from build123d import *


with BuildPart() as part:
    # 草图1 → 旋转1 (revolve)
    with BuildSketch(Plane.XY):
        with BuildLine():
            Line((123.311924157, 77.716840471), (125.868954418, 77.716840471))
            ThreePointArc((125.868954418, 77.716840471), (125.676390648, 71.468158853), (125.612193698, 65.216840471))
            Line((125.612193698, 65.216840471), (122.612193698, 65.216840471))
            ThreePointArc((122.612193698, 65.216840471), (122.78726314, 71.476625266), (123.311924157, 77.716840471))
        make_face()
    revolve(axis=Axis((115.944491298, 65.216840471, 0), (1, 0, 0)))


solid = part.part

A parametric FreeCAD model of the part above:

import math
import FreeCAD as App
import Part
import Sketcher

doc = App.newDocument("Part")
body = doc.addObject("PartDesign::Body", "Body")

# Sketch on XY plane
sketch1 = body.newObject("Sketcher::SketchObject", "Sketch")
sketch1.AttachmentSupport = (doc.getObject("XY_Plane"), [""])
sketch1.MapMode = "FlatFace"
sketch1.addGeometry([
    Part.LineSegment(App.Vector(125.9, 77.7, 0), App.Vector(123.3, 77.7, 0)),
    Part.ArcOfCircle(Part.Circle(App.Vector(234.6, 65.2, 0), App.Vector(0, 0, 1), 112), math.radians(173.59), math.radians(180)),
    Part.LineSegment(App.Vector(122.6, 65.2, 0), App.Vector(125.6, 65.2, 0)),
    Part.ArcOfCircle(Part.Circle(App.Vector(430, 65.2, 0), App.Vector(0, 0, 1), 304.4), math.radians(177.65), math.radians(180)),
], False)
sketch1.addGeometry(Part.LineSegment(App.Vector(122.6, 65.2, 0), App.Vector(430, 65.2, 0)), True)  # axis
sketch1.addConstraint([
    Sketcher.Constraint("Coincident", 0, 2, 1, 1),
    Sketcher.Constraint("Coincident", 1, 2, 2, 1),
    Sketcher.Constraint("Coincident", 2, 2, 3, 2),
    Sketcher.Constraint("Coincident", 3, 1, 0, 1),
    Sketcher.Constraint("Horizontal", 0),
    Sketcher.Constraint("Horizontal", 2),
    Sketcher.Constraint("Horizontal", 4),
    Sketcher.Constraint("Coincident", 4, 1, 1, 2),
    Sketcher.Constraint("Coincident", 4, 2, 3, 3),
    Sketcher.Constraint("Horizontal", 1, 3, 3, 3),
    Sketcher.Constraint("Radius", 1, 112.0),
    Sketcher.Constraint("DistanceX", 2, 1, 2, 2, 3.0),
    Sketcher.Constraint("DistanceY", 1, 3, 0, 2, 12.5),
    Sketcher.Constraint("Radius", 3, 304.400002),
    Sketcher.Constraint("DistanceY", -1, 1, 1, 3, 65.21684),
    Sketcher.Constraint("DistanceX", -1, 1, 1, 3, 234.612194),
])
revolution = body.newObject("PartDesign::Revolution", "Revolution")
revolution.Profile = sketch1
revolution.ReferenceAxis = (sketch1, ["Axis0"])
revolution.Angle = 360

doc.recompute()
